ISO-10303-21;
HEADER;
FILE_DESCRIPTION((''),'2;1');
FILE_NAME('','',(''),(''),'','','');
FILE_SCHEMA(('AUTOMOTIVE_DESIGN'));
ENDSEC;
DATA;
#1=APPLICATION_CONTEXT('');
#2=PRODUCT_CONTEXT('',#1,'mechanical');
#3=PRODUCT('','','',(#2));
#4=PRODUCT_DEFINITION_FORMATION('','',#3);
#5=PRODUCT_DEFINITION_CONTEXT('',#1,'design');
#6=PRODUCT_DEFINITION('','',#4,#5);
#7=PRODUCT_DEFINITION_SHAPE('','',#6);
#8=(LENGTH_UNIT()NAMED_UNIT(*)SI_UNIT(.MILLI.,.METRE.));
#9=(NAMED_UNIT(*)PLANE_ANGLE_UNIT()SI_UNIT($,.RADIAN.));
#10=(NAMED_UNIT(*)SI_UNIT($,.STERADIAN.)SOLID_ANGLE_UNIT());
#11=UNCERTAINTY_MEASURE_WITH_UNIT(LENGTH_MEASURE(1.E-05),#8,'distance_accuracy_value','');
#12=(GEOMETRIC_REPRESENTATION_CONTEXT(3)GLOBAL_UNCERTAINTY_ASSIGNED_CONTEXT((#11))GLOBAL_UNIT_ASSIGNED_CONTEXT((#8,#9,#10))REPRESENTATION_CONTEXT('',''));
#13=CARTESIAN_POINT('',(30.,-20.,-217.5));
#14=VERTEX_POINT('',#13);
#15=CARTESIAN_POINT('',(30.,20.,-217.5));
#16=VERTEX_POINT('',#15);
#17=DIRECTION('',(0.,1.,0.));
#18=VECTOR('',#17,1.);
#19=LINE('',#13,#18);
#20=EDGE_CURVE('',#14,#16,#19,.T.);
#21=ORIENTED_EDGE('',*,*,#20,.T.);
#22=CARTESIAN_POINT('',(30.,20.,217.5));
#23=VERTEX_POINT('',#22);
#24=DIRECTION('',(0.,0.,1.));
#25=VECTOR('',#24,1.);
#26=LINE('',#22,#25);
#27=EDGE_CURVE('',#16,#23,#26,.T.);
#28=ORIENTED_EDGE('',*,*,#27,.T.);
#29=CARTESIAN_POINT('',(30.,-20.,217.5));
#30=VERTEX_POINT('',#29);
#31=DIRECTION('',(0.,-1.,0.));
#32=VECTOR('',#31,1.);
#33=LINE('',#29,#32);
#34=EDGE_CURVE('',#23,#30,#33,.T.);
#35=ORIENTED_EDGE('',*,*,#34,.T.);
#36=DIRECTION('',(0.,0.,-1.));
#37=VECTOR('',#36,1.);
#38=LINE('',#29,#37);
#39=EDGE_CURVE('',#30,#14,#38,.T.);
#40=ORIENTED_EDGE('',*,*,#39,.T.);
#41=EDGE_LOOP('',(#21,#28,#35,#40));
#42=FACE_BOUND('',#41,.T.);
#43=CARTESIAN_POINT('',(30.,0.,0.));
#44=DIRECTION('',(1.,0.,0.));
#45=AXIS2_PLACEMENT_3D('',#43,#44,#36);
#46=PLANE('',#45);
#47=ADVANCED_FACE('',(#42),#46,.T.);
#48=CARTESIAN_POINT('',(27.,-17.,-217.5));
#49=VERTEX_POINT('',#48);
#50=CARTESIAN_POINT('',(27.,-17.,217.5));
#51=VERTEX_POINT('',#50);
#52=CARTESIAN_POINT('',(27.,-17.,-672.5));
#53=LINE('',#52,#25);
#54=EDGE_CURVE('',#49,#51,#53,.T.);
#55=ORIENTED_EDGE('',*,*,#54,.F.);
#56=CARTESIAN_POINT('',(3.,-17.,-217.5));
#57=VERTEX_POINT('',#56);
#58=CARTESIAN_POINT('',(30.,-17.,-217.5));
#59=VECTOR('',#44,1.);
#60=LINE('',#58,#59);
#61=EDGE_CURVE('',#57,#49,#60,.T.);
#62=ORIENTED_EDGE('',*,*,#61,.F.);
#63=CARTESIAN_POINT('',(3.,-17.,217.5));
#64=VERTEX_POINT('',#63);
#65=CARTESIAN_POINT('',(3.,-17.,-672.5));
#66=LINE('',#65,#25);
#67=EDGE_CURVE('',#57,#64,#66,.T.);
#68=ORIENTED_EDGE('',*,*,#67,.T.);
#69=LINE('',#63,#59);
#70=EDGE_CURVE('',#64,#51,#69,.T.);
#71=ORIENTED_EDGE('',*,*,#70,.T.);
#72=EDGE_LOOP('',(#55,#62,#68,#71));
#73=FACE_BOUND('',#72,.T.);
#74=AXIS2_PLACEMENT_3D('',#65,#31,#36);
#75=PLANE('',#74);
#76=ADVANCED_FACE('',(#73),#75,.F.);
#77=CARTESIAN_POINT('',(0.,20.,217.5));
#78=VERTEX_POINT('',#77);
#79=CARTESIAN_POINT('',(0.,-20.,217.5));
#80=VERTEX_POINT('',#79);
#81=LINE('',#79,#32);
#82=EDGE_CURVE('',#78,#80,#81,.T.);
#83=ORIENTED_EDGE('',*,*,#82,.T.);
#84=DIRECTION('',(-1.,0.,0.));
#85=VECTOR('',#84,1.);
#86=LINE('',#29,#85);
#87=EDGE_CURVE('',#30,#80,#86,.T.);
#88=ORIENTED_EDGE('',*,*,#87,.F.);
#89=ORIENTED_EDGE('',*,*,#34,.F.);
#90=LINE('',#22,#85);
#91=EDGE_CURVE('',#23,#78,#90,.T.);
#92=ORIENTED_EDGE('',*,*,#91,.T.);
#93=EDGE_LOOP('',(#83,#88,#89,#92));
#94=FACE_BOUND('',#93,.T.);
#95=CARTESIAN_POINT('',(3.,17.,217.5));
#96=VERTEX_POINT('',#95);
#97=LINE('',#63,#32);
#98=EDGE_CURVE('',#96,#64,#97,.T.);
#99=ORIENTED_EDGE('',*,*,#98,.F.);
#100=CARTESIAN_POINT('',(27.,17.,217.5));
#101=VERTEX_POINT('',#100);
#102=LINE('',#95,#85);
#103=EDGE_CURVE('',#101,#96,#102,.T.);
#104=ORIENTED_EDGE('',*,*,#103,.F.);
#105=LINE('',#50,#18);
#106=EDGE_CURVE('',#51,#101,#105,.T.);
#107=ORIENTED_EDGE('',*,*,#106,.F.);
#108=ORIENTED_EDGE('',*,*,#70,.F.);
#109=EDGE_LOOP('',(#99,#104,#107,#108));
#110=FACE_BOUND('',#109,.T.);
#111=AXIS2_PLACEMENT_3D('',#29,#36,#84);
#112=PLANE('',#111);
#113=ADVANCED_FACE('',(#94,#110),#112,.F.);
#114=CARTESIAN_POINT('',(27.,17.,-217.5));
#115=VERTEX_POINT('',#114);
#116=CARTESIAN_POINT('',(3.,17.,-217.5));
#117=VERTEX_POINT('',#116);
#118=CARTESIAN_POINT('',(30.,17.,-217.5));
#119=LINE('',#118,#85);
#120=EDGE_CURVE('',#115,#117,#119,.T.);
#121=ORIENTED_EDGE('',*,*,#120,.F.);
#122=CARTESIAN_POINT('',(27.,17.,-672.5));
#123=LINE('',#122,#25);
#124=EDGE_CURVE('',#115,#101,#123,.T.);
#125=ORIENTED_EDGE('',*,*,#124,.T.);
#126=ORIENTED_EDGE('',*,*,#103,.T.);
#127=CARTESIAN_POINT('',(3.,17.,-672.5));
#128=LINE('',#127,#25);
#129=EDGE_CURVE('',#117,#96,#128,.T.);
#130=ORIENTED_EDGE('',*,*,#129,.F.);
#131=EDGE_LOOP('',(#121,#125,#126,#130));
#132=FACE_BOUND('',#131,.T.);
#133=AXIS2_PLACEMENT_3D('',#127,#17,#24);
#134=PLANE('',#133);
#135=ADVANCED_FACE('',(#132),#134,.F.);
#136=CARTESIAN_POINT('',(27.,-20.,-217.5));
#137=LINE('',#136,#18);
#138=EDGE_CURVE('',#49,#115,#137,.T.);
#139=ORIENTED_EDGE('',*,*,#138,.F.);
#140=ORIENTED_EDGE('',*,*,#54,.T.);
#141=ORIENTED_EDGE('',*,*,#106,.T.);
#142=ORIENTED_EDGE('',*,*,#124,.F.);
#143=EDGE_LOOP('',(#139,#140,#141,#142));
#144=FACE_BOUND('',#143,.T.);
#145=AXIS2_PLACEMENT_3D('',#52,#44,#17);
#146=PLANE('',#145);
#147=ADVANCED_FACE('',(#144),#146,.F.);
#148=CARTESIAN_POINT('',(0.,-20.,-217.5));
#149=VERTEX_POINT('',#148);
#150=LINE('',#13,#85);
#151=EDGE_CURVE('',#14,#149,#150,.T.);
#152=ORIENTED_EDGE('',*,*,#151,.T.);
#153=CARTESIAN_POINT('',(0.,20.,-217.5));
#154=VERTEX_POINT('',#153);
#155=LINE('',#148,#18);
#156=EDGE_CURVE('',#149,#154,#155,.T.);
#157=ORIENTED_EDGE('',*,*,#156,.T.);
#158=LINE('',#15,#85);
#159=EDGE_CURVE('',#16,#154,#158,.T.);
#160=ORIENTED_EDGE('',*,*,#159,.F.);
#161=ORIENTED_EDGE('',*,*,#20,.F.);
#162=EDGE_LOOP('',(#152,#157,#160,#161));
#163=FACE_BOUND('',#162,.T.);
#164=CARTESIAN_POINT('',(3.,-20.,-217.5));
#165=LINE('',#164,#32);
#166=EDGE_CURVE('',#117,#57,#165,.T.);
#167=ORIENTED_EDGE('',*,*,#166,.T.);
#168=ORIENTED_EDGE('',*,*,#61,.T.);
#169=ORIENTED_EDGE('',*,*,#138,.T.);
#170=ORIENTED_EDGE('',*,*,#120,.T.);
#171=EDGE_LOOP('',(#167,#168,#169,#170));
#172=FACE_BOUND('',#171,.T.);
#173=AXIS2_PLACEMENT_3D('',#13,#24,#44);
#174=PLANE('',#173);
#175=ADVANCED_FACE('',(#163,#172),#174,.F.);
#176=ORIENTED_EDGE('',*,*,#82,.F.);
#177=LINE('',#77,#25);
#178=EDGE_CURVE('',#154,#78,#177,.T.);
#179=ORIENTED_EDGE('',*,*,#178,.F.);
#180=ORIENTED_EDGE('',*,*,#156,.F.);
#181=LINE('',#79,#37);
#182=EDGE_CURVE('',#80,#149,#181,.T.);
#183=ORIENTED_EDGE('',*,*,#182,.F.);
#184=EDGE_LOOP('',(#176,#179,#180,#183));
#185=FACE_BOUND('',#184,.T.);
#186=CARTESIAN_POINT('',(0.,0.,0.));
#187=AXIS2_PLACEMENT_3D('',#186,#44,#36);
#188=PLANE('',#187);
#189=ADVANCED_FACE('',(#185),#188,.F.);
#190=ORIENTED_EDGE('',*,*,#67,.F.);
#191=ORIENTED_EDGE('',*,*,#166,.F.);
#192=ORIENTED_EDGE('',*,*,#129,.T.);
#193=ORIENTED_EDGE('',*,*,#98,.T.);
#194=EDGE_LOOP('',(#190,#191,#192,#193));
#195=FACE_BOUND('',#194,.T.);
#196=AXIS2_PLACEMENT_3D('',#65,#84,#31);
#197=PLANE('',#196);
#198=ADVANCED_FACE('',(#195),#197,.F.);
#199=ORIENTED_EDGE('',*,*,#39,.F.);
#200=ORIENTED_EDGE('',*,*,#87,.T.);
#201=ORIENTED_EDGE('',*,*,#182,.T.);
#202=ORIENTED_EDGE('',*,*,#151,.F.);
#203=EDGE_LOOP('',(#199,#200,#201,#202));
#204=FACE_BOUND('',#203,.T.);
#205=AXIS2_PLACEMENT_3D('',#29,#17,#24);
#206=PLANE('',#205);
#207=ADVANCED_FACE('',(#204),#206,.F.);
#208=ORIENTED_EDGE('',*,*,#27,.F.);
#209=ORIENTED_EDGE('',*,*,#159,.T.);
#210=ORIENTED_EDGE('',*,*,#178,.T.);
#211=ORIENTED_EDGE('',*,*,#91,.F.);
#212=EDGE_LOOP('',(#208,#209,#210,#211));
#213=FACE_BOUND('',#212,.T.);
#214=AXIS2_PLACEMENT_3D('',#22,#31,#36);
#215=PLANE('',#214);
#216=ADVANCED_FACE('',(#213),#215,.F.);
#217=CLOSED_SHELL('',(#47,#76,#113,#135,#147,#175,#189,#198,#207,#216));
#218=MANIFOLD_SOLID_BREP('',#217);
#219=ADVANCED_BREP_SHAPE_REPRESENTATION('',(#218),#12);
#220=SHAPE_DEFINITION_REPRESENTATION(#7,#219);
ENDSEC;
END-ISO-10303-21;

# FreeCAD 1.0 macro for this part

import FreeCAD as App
import Part
import Sketcher

V = App.Vector

doc = App.newDocument("Part")
body = doc.addObject("PartDesign::Body", "Body")

sketch1 = body.newObject("Sketcher::SketchObject", "Sketch")
sketch1.AttachmentSupport = (doc.getObject("YZ_Plane"), [""])
sketch1.MapMode = "FlatFace"
sketch1.addGeometry([
    Part.LineSegment(V(20, 217.5, 0), V(-20, 217.5, 0)),
    Part.LineSegment(V(-20, 217.5, 0), V(-20, -217.5, 0)),
    Part.LineSegment(V(-20, -217.5, 0), V(20, -217.5, 0)),
    Part.LineSegment(V(20, -217.5, 0), V(20, 217.5, 0)),
], False)
sketch1.addConstraint([
    Sketcher.Constraint("Coincident", 0, 2, 1, 1),
    Sketcher.Constraint("Coincident", 1, 2, 2, 1),
    Sketcher.Constraint("Coincident", 2, 2, 3, 1),
    Sketcher.Constraint("Coincident", 3, 2, 0, 1),
    Sketcher.Constraint("Horizontal", 0),
    Sketcher.Constraint("Vertical", 1),
    Sketcher.Constraint("Horizontal", 2),
    Sketcher.Constraint("Vertical", 3),
    Sketcher.Constraint("Symmetric", 0, 2, 2, 2, -1, 1),
    Sketcher.Constraint("DistanceX", 0, 2, 0, 1, 40.0),
    Sketcher.Constraint("DistanceY", 1, 2, 1, 1, 435.0),
])
pad1 = body.newObject("PartDesign::Pad", "Pad")
pad1.Profile = sketch1
pad1.Length = 30

sketch2 = body.newObject("Sketcher::SketchObject", "Sketch001")
sketch2.AttachmentSupport = (doc.getObject("XY_Plane"), [""])
sketch2.MapMode = "FlatFace"
sketch2.AttachmentOffset = App.Placement(V(0, 0, 217.5), App.Rotation())
sketch2.addGeometry([
    Part.LineSegment(V(3, 17, 0), V(3, -17, 0)),
    Part.LineSegment(V(3, -17, 0), V(27, -17, 0)),
    Part.LineSegment(V(27, -17, 0), V(27, 17, 0)),
    Part.LineSegment(V(27, 17, 0), V(3, 17, 0)),
], False)
sketch2.addConstraint([
    Sketcher.Constraint("Coincident", 0, 2, 1, 1),
    Sketcher.Constraint("Coincident", 1, 2, 2, 1),
    Sketcher.Constraint("Coincident", 2, 2, 3, 1),
    Sketcher.Constraint("Coincident", 3, 2, 0, 1),
    Sketcher.Constraint("Vertical", 0),
    Sketcher.Constraint("Horizontal", 1),
    Sketcher.Constraint("Vertical", 2),
    Sketcher.Constraint("Horizontal", 3),
    Sketcher.Constraint("DistanceX", 1, 1, 1, 2, 24.0),
    Sketcher.Constraint("DistanceY", 0, 2, 0, 1, 34.0),
    Sketcher.Constraint("DistanceX", -1, 1, 0, 2, 3.0),
    Sketcher.Constraint("DistanceY", 0, 2, -1, 1, 17.0),
])
pocket1 = body.newObject("PartDesign::Pocket", "Pocket")
pocket1.Profile = sketch2
pocket1.Length = 890

doc.recompute()
